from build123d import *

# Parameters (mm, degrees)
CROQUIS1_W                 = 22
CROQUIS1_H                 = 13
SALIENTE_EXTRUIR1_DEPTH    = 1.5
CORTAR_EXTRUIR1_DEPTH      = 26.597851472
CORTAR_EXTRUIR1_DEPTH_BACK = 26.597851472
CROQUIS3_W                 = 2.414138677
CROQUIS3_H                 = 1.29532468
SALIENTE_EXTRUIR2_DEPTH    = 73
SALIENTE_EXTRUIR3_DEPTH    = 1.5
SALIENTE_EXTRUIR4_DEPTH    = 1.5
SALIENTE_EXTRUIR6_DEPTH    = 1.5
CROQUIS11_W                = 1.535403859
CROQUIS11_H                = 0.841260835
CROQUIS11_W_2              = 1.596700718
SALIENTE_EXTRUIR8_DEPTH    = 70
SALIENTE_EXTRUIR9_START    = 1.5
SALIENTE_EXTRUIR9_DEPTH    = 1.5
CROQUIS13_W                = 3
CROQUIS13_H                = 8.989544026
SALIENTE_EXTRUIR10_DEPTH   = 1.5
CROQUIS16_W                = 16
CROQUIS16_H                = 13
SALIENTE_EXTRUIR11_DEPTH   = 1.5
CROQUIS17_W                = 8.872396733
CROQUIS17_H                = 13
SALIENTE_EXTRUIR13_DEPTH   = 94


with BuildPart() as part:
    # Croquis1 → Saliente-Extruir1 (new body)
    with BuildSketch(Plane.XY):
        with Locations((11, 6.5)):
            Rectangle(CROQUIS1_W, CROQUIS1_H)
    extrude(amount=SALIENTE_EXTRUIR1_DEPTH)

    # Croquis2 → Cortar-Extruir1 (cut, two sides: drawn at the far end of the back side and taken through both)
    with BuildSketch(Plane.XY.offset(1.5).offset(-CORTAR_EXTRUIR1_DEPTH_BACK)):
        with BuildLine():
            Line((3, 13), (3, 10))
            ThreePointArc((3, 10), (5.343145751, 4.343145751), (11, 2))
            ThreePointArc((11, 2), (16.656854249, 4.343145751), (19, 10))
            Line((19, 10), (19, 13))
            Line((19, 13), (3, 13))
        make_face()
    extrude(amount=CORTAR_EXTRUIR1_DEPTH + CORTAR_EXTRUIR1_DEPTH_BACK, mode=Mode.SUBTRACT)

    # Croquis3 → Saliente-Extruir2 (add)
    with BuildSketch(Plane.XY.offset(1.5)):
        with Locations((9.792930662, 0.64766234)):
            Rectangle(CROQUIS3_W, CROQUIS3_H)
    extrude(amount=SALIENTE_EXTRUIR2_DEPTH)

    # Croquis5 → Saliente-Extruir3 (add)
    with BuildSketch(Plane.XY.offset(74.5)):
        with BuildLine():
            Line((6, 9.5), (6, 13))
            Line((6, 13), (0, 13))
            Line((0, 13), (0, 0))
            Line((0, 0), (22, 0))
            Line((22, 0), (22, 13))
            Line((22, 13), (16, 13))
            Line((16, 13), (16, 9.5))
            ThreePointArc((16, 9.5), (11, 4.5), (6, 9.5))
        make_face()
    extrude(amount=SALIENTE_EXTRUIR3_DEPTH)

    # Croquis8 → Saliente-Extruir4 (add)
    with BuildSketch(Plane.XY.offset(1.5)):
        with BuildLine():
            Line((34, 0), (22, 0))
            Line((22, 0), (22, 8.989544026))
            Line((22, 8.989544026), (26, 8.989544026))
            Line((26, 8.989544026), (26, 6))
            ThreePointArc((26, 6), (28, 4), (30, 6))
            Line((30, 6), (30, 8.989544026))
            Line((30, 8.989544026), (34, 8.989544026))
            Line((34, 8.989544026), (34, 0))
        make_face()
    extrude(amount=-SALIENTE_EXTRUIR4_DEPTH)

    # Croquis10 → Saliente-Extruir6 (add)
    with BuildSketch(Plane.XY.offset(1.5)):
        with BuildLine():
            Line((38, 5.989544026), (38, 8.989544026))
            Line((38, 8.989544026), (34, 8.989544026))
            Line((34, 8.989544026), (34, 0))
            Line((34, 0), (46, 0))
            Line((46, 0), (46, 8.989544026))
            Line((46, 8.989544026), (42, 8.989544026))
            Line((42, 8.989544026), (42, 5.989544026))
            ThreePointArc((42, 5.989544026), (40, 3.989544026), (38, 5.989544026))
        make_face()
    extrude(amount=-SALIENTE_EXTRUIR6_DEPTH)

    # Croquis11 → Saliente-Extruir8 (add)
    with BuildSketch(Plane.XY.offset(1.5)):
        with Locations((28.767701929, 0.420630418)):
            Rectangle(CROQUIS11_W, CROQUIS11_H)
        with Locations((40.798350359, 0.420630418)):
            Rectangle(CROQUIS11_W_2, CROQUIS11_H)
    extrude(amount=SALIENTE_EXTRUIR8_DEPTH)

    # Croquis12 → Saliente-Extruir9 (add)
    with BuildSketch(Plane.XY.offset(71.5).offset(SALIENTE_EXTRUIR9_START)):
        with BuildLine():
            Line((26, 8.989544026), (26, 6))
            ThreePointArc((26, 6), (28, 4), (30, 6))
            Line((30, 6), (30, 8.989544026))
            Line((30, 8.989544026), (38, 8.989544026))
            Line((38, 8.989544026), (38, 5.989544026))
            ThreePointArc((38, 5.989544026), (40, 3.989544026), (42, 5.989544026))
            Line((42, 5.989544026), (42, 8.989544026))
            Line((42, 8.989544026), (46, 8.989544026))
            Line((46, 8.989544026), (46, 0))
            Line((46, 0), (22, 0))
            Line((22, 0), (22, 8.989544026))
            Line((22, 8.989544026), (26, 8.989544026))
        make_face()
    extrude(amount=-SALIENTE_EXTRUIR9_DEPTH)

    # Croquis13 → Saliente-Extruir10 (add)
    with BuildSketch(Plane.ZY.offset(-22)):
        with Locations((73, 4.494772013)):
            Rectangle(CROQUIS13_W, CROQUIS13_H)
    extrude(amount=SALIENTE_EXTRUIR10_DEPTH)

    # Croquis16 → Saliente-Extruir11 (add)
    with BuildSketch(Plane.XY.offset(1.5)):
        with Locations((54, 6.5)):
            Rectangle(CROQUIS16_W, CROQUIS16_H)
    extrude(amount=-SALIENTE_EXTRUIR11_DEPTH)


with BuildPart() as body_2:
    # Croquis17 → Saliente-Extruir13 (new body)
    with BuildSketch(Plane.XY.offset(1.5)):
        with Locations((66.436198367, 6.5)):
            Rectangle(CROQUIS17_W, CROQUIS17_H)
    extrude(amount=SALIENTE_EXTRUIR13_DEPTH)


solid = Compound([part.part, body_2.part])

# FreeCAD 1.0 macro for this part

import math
import FreeCAD as App
import Part
import Sketcher
from FreeCAD import Vector
Q = App.Units.Quantity

doc = App.newDocument("Part")
params = doc.addObject("Spreadsheet::Sheet", "Params")
for row, (alias, value) in enumerate([
    ("sketch1_width", "22 mm"),
    ("sketch1_height", "13 mm"),
    ("pad1_length", "1.5 mm"),
    ("sketch2_radius", "8 mm"),
    ("sketch2_height", "3 mm"),
    ("pad2_length", "73 mm"),
    ("sketch4_radius", "5 mm"),
    ("sketch4_width", "6 mm"),
    ("sketch4_height", "13 mm"),
    ("sketch4_height2", "3.5 mm"),
    ("pad3_length", "1.5 mm"),
    ("sketch5_radius", "2 mm"),
    ("sketch5_width", "12 mm"),
    ("pad4_length", "1.5 mm"),
    ("sketch6_radius", "2 mm"),
    ("sketch6_width", "4 mm"),
    ("sketch6_height", "3 mm"),
    ("pad5_length", "1.5 mm"),
    ("pad6_length", "70 mm"),
    ("sketch8_radius", "2 mm"),
    ("sketch8_width", "4 mm"),
    ("sketch8_width2", "24 mm"),
    ("sketch8_height", "3 mm"),
    ("pad7_length", "1.5 mm"),
    ("sketch9_height", "3 mm"),
    ("pad8_length", "1.5 mm"),
    ("sketch10_width", "16 mm"),
    ("sketch10_height", "13 mm"),
    ("pad9_length", "1.5 mm"),
    ("sketch11_height", "13 mm"),
    ("pad10_length", "94 mm"),
], start=1):
    params.set(f"A{row}", alias)
    params.set(f"B{row}", "=" + value)
    params.setAlias(f"B{row}", alias)

body = doc.addObject("PartDesign::Body", "Body")

sketch1 = body.newObject("Sketcher::SketchObject", "Sketch")
sketch1.AttachmentSupport = (doc.getObject("XY_Plane"), [""])
sketch1.MapMode = "FlatFace"
sketch1.addGeometry([
    Part.LineSegment(Vector(0, 13, 0), Vector(0, 0, 0)),
    Part.LineSegment(Vector(0, 0, 0), Vector(22, 0, 0)),
    Part.LineSegment(Vector(22, 0, 0), Vector(22, 13, 0)),
    Part.LineSegment(Vector(22, 13, 0), Vector(0, 13, 0)),
], False)
sketch1.addConstraint([
    Sketcher.Constraint("Coincident", 0, 2, 1, 1),
    Sketcher.Constraint("Coincident", 1, 2, 2, 1),
    Sketcher.Constraint("Coincident", 2, 2, 3, 1),
    Sketcher.Constraint("Coincident", 3, 2, 0, 1),
    Sketcher.Constraint("Vertical", 0),
    Sketcher.Constraint("Horizontal", 1),
    Sketcher.Constraint("Vertical", 2),
    Sketcher.Constraint("Horizontal", 3),
    Sketcher.Constraint("Coincident", 0, 2, -1, 1),
    Sketcher.Constraint("DistanceX", 1, 1, 1, 2, Q("22 mm")),
    Sketcher.Constraint("DistanceY", 0, 2, 0, 1, Q("13 mm")),
])
sketch1.setExpression("Constraints[9]", "Params.sketch1_width")
sketch1.setExpression("Constraints[10]", "Params.sketch1_height")
pad1 = body.newObject("PartDesign::Pad", "Pad")
pad1.Profile = sketch1
pad1.setExpression("Length", "Params.pad1_length")

sketch2 = body.newObject("Sketcher::SketchObject", "Sketch001")
sketch2.AttachmentSupport = (doc.getObject("XY_Plane"), [""])
sketch2.MapMode = "FlatFace"
sketch2.AttachmentOffset = App.Placement(Vector(0, 0, 1.5), App.Rotation())
sketch2.addGeometry([
    Part.LineSegment(Vector(3, 13, 0), Vector(3, 10, 0)),
    Part.ArcOfCircle(Part.Circle(Vector(11, 10, 0), Vector(0, 0, 1), 8), math.radians(-180), math.radians(-90)),
    Part.ArcOfCircle(Part.Circle(Vector(11, 10, 0), Vector(0, 0, 1), 8), math.radians(-90), math.radians(0)),
    Part.LineSegment(Vector(19, 10, 0), Vector(19, 13, 0)),
    Part.LineSegment(Vector(19, 13, 0), Vector(3, 13, 0)),
], False)
sketch2.addConstraint([
    Sketcher.Constraint("Tangent", 0, 2, 1, 1),
    Sketcher.Constraint("Tangent", 1, 2, 2, 1),
    Sketcher.Constraint("Tangent", 2, 2, 3, 1),
    Sketcher.Constraint("Coincident", 3, 2, 4, 1),
    Sketcher.Constraint("Coincident", 4, 2, 0, 1),
    Sketcher.Constraint("Vertical", 0),
    Sketcher.Constraint("Vertical", 3),
    Sketcher.Constraint("Horizontal", 4),
    Sketcher.Constraint("Equal", 1, 2),
    Sketcher.Constraint("Vertical", 2, 3, 1, 2),
    Sketcher.Constraint("Radius", 1, Q("8 mm")),
    Sketcher.Constraint("DistanceY", 0, 2, 0, 1, Q("3 mm")),
    Sketcher.Constraint("DistanceX", -1, 1, 1, 3, Q("11 mm")),
    Sketcher.Constraint("DistanceY", -1, 1, 1, 3, Q("10 mm")),
])
sketch2.setExpression("Constraints[10]", "Params.sketch2_radius")
sketch2.setExpression("Constraints[11]", "Params.sketch2_height")
pocket1 = body.newObject("PartDesign::Pocket", "Pocket")
pocket1.Profile = sketch2
pocket1.Type = "ThroughAll"
pocket1.Midplane = True

sketch3 = body.newObject("Sketcher::SketchObject", "Sketch002")
sketch3.AttachmentSupport = (doc.getObject("XY_Plane"), [""])
sketch3.MapMode = "FlatFace"
sketch3.AttachmentOffset = App.Placement(Vector(0, 0, 1.5), App.Rotation())
sketch3.addGeometry([
    Part.LineSegment(Vector(8.585861, 1.295325, 0), Vector(8.585861, 0, 0)),
    Part.LineSegment(Vector(8.585861, 0, 0), Vector(11, 0, 0)),
    Part.LineSegment(Vector(11, 0, 0), Vector(11, 1.295325, 0)),
    Part.LineSegment(Vector(11, 1.295325, 0), Vector(8.585861, 1.295325, 0)),
], False)
sketch3.addConstraint([
    Sketcher.Constraint("Coincident", 0, 2, 1, 1),
    Sketcher.Constraint("Coincident", 1, 2, 2, 1),
    Sketcher.Constraint("Coincident", 2, 2, 3, 1),
    Sketcher.Constraint("Coincident", 3, 2, 0, 1),
    Sketcher.Constraint("Vertical", 0),
    Sketcher.Constraint("Horizontal", 1),
    Sketcher.Constraint("Vertical", 2),
    Sketcher.Constraint("Horizontal", 3),
    Sketcher.Constraint("PointOnObject", 0, 2, -1),
    Sketcher.Constraint("DistanceX", -1, 1, 1, 2, Q("11 mm")),
    Sketcher.Constraint("DistanceX", 1, 1, 1, 2, Q("2.414139 mm")),
    Sketcher.Constraint("DistanceY", 0, 2, 0, 1, Q("1.295325 mm")),
])
pad2 = body.newObject("PartDesign::Pad", "Pad001")
pad2.Profile = sketch3
pad2.setExpression("Length", "Params.pad2_length")

sketch4 = body.newObject("Sketcher::SketchObject", "Sketch003")
sketch4.AttachmentSupport = (doc.getObject("XY_Plane"), [""])
sketch4.MapMode = "FlatFace"
sketch4.AttachmentOffset = App.Placement(Vector(0, 0, 74.5), App.Rotation())
sketch4.addGeometry([
    Part.LineSegment(Vector(6, 9.5, 0), Vector(6, 13, 0)),
    Part.LineSegment(Vector(6, 13, 0), Vector(0, 13, 0)),
    Part.LineSegment(Vector(0, 13, 0), Vector(0, 0, 0)),
    Part.LineSegment(Vector(0, 0, 0), Vector(22, 0, 0)),
    Part.LineSegment(Vector(22, 0, 0), Vector(22, 13, 0)),
    Part.LineSegment(Vector(22, 13, 0), Vector(16, 13, 0)),
    Part.LineSegment(Vector(16, 13, 0), Vector(16, 9.5, 0)),
    Part.ArcOfCircle(Part.Circle(Vector(11, 9.5, 0), Vector(0, 0, 1), 5), math.radians(180), math.radians(360)),
], False)
sketch4.addConstraint([
    Sketcher.Constraint("Coincident", 0, 2, 1, 1),
    Sketcher.Constraint("Coincident", 1, 2, 2, 1),
    Sketcher.Constraint("Coincident", 2, 2, 3, 1),
    Sketcher.Constraint("Coincident", 3, 2, 4, 1),
    Sketcher.Constraint("Coincident", 4, 2, 5, 1),
    Sketcher.Constraint("Coincident", 5, 2, 6, 1),
    Sketcher.Constraint("Tangent", 6, 2, 7, 2),
    Sketcher.Constraint("Tangent", 7, 1, 0, 1),
    Sketcher.Constraint("Vertical", 0),
    Sketcher.Constraint("Horizontal", 1),
    Sketcher.Constraint("Vertical", 2),
    Sketcher.Constraint("Horizontal", 3),
    Sketcher.Constraint("Vertical", 4),
    Sketcher.Constraint("Horizontal", 5),
    Sketcher.Constraint("Vertical", 6),
    Sketcher.Constraint("Coincident", 2, 2, -1, 1),
    Sketcher.Constraint("Horizontal", 1, 2, 4, 2),
    Sketcher.Constraint("Equal", 1, 5),
    Sketcher.Constraint("Radius", 7, Q("5 mm")),
    Sketcher.Constraint("DistanceX", 1, 2, 1, 1, Q("6 mm")),
    Sketcher.Constraint("DistanceY", 2, 2, 2, 1, Q("13 mm")),
    Sketcher.Constraint("DistanceY", 0, 1, 0, 2, Q("3.5 mm")),
])
sketch4.setExpression("Constraints[18]", "Params.sketch4_radius")
sketch4.setExpression("Constraints[19]", "Params.sketch4_width")
sketch4.setExpression("Constraints[20]", "Params.sketch4_height")
sketch4.setExpression("Constraints[21]", "Params.sketch4_height2")
pad3 = body.newObject("PartDesign::Pad", "Pad002")
pad3.Profile = sketch4
pad3.setExpression("Length", "Params.pad3_length")

sketch5 = body.newObject("Sketcher::SketchObject", "Sketch004")
sketch5.AttachmentSupport = (doc.getObject("XY_Plane"), [""])
sketch5.MapMode = "FlatFace"
sketch5.AttachmentOffset = App.Placement(Vector(0, 0, 1.5), App.Rotation())
sketch5.addGeometry([
    Part.LineSegment(Vector(22, 0, 0), Vector(34, 0, 0)),
    Part.LineSegment(Vector(34, 0, 0), Vector(34, 8.989544, 0)),
    Part.LineSegment(Vector(34, 8.989544, 0), Vector(30, 8.989544, 0)),
    Part.LineSegment(Vector(30, 8.989544, 0), Vector(30, 6, 0)),
    Part.ArcOfCircle(Part.Circle(Vector(28, 6, 0), Vector(0, 0, 1), 2), math.radians(180), math.radians(360)),
    Part.LineSegment(Vector(26, 6, 0), Vector(26, 8.989544, 0)),
    Part.LineSegment(Vector(26, 8.989544, 0), Vector(22, 8.989544, 0)),
    Part.LineSegment(Vector(22, 8.989544, 0), Vector(22, 0, 0)),
], False)
sketch5.addConstraint([
    Sketcher.Constraint("Coincident", 0, 2, 1, 1),
    Sketcher.Constraint("Coincident", 1, 2, 2, 1),
    Sketcher.Constraint("Coincident", 2, 2, 3, 1),
    Sketcher.Constraint("Tangent", 3, 2, 4, 2),
    Sketcher.Constraint("Tangent", 4, 1, 5, 1),
    Sketcher.Constraint("Coincident", 5, 2, 6, 1),
    Sketcher.Constraint("Coincident", 6, 2, 7, 1),
    Sketcher.Constraint("Coincident", 7, 2, 0, 1),
    Sketcher.Constraint("Horizontal", 0),
    Sketcher.Constraint("Vertical", 1),
    Sketcher.Constraint("Horizontal", 2),
    Sketcher.Constraint("Vertical", 3),
    Sketcher.Constraint("Vertical", 5),
    Sketcher.Constraint("Horizontal", 6),
    Sketcher.Constraint("Vertical", 7),
    Sketcher.Constraint("PointOnObject", 0, 2, -1),
    Sketcher.Constraint("Horizontal", 2, 2, 5, 2),
    Sketcher.Constraint("Equal", 2, 6),
    Sketcher.Constraint("Radius", 4, Q("2 mm")),
    Sketcher.Constraint("DistanceX", 0, 1, 0, 2, Q("12 mm")),
    Sketcher.Constraint("DistanceX", -1, 1, 4, 3, Q("28 mm")),
    Sketcher.Constraint("DistanceY", -1, 1, 4, 3, Q("6 mm")),
    Sketcher.Constraint("DistanceY", 1, 1, 1, 2, Q("8.989544 mm")),
])
sketch5.setExpression("Constraints[18]", "Params.sketch5_radius")
sketch5.setExpression("Constraints[19]", "Params.sketch5_width")
pad4 = body.newObject("PartDesign::Pad", "Pad003")
pad4.Profile = sketch5
pad4.setExpression("Length", "Params.pad4_length")
pad4.Reversed = True

sketch6 = body.newObject("Sketcher::SketchObject", "Sketch005")
sketch6.AttachmentSupport = (doc.getObject("XY_Plane"), [""])
sketch6.MapMode = "FlatFace"
sketch6.AttachmentOffset = App.Placement(Vector(0, 0, 1.5), App.Rotation())
sketch6.addGeometry([
    Part.LineSegment(Vector(38, 5.989544, 0), Vector(38, 8.989544, 0)),
    Part.LineSegment(Vector(38, 8.989544, 0), Vector(34, 8.989544, 0)),
    Part.LineSegment(Vector(34, 8.989544, 0), Vector(34, 0, 0)),
    Part.LineSegment(Vector(34, 0, 0), Vector(46, 0, 0)),
    Part.LineSegment(Vector(46, 0, 0), Vector(46, 8.989544, 0)),
    Part.LineSegment(Vector(46, 8.989544, 0), Vector(42, 8.989544, 0)),
    Part.LineSegment(Vector(42, 8.989544, 0), Vector(42, 5.989544, 0)),
    Part.ArcOfCircle(Part.Circle(Vector(40, 5.989544, 0), Vector(0, 0, 1), 2), math.radians(180), math.radians(360)),
], False)
sketch6.addConstraint([
    Sketcher.Constraint("Coincident", 0, 2, 1, 1),
    Sketcher.Constraint("Coincident", 1, 2, 2, 1),
    Sketcher.Constraint("Coincident", 2, 2, 3, 1),
    Sketcher.Constraint("Coincident", 3, 2, 4, 1),
    Sketcher.Constraint("Coincident", 4, 2, 5, 1),
    Sketcher.Constraint("Coincident", 5, 2, 6, 1),
    Sketcher.Constraint("Tangent", 6, 2, 7, 2),
    Sketcher.Constraint("Tangent", 7, 1, 0, 1),
    Sketcher.Constraint("Vertical", 0),
    Sketcher.Constraint("Horizontal", 1),
    Sketcher.Constraint("Vertical", 2),
    Sketcher.Constraint("Horizontal", 3),
    Sketcher.Constraint("Vertical", 4),
    Sketcher.Constraint("Horizontal", 5),
    Sketcher.Constraint("Vertical", 6),
    Sketcher.Constraint("PointOnObject", 2, 2, -1),
    Sketcher.Constraint("Horizontal", 1, 2, 4, 2),
    Sketcher.Constraint("Equal", 1, 5),
    Sketcher.Constraint("Radius", 7, Q("2 mm")),
    Sketcher.Constraint("DistanceX", 1, 2, 1, 1, Q("4 mm")),
    Sketcher.Constraint("DistanceY", 0, 1, 0, 2, Q("3 mm")),
    Sketcher.Constraint("DistanceX", -1, 1, 7, 3, Q("40 mm")),
    Sketcher.Constraint("DistanceY", 2, 2, 2, 1, Q("8.989544 mm")),
])
sketch6.setExpression("Constraints[18]", "Params.sketch6_radius")
sketch6.setExpression("Constraints[19]", "Params.sketch6_width")
sketch6.setExpression("Constraints[20]", "Params.sketch6_height")
pad5 = body.newObject("PartDesign::Pad", "Pad004")
pad5.Profile = sketch6
pad5.setExpression("Length", "Params.pad5_length")
pad5.Reversed = True

sketch7 = body.newObject("Sketcher::SketchObject", "Sketch006")
sketch7.AttachmentSupport = (doc.getObject("XY_Plane"), [""])
sketch7.MapMode = "FlatFace"
sketch7.AttachmentOffset = App.Placement(Vector(0, 0, 1.5), App.Rotation())
sketch7.addGeometry([
    Part.LineSegment(Vector(28, 0.841261, 0), Vector(28, 0, 0)),
    Part.LineSegment(Vector(28, 0, 0), Vector(29.535404, 0, 0)),
    Part.LineSegment(Vector(29.535404, 0, 0), Vector(29.535404, 0.841261, 0)),
    Part.LineSegment(Vector(29.535404, 0.841261, 0), Vector(28, 0.841261, 0)),
    Part.LineSegment(Vector(40, 0.841261, 0), Vector(40, 0, 0)),
    Part.LineSegment(Vector(40, 0, 0), Vector(41.596701, 0, 0)),
    Part.LineSegment(Vector(41.596701, 0, 0), Vector(41.596701, 0.841261, 0)),
    Part.LineSegment(Vector(41.596701, 0.841261, 0), Vector(40, 0.841261, 0)),
], False)
sketch7.addConstraint([
    Sketcher.Constraint("Coincident", 0, 2, 1, 1),
    Sketcher.Constraint("Coincident", 1, 2, 2, 1),
    Sketcher.Constraint("Coincident", 2, 2, 3, 1),
    Sketcher.Constraint("Coincident", 3, 2, 0, 1),
    Sketcher.Constraint("Coincident", 4, 2, 5, 1),
    Sketcher.Constraint("Coincident", 5, 2, 6, 1),
    Sketcher.Constraint("Coincident", 6, 2, 7, 1),
    Sketcher.Constraint("Coincident", 7, 2, 4, 1),
    Sketcher.Constraint("Vertical", 0),
    Sketcher.Constraint("Horizontal", 1),
    Sketcher.Constraint("Vertical", 2),
    Sketcher.Constraint("Horizontal", 3),
    Sketcher.Constraint("Vertical", 4),
    Sketcher.Constraint("Horizontal", 5),
    Sketcher.Constraint("Vertical", 6),
    Sketcher.Constraint("Horizontal", 7),
    Sketcher.Constraint("PointOnObject", 0, 2, -1),
    Sketcher.Constraint("PointOnObject", 4, 2, -1),
    Sketcher.Constraint("Horizontal", 3, 2, 6, 2),
    Sketcher.Constraint("DistanceX", -1, 1, 0, 2, Q("28 mm")),
    Sketcher.Constraint("DistanceX", -1, 1, 4, 2, Q("40 mm")),
    Sketcher.Constraint("DistanceX", 5, 1, 5, 2, Q("1.596701 mm")),
    Sketcher.Constraint("DistanceY", 0, 2, 0, 1, Q("0.841261 mm")),
    Sketcher.Constraint("DistanceX", 1, 1, 1, 2, Q("1.535404 mm")),
])
pad6 = body.newObject("PartDesign::Pad", "Pad005")
pad6.Profile = sketch7
pad6.setExpression("Length", "Params.pad6_length")

sketch8 = body.newObject("Sketcher::SketchObject", "Sketch007")
sketch8.AttachmentSupport = (doc.getObject("XY_Plane"), [""])
sketch8.MapMode = "FlatFace"
sketch8.AttachmentOffset = App.Placement(Vector(0, 0, 73), App.Rotation())
sketch8.addGeometry([
    Part.LineSegment(Vector(26, 6, 0), Vector(26, 8.989544, 0)),
    Part.LineSegment(Vector(26, 8.989544, 0), Vector(22, 8.989544, 0)),
    Part.LineSegment(Vector(22, 8.989544, 0), Vector(22, 0, 0)),
    Part.LineSegment(Vector(22, 0, 0), Vector(46, 0, 0)),
    Part.LineSegment(Vector(46, 0, 0), Vector(46, 8.989544, 0)),
    Part.LineSegment(Vector(46, 8.989544, 0), Vector(42, 8.989544, 0)),
    Part.LineSegment(Vector(42, 8.989544, 0), Vector(42, 5.989544, 0)),
    Part.ArcOfCircle(Part.Circle(Vector(40, 5.989544, 0), Vector(0, 0, 1), 2), math.radians(180), math.radians(360)),
    Part.LineSegment(Vector(38, 5.989544, 0), Vector(38, 8.989544, 0)),
    Part.LineSegment(Vector(38, 8.989544, 0), Vector(30, 8.989544, 0)),
    Part.LineSegment(Vector(30, 8.989544, 0), Vector(30, 6, 0)),
    Part.ArcOfCircle(Part.Circle(Vector(28, 6, 0), Vector(0, 0, 1), 2), math.radians(180), math.radians(360)),
], False)
sketch8.addConstraint([
    Sketcher.Constraint("Coincident", 0, 2, 1, 1),
    Sketcher.Constraint("Coincident", 1, 2, 2, 1),
    Sketcher.Constraint("Coincident", 2, 2, 3, 1),
    Sketcher.Constraint("Coincident", 3, 2, 4, 1),
    Sketcher.Constraint("Coincident", 4, 2, 5, 1),
    Sketcher.Constraint("Coincident", 5, 2, 6, 1),
    Sketcher.Constraint("Tangent", 6, 2, 7, 2),
    Sketcher.Constraint("Tangent", 7, 1, 8, 1),
    Sketcher.Constraint("Coincident", 8, 2, 9, 1),
    Sketcher.Constraint("Coincident", 9, 2, 10, 1),
    Sketcher.Constraint("Tangent", 10, 2, 11, 2),
    Sketcher.Constraint("Tangent", 11, 1, 0, 1),
    Sketcher.Constraint("Vertical", 0),
    Sketcher.Constraint("Horizontal", 1),
    Sketcher.Constraint("Vertical", 2),
    Sketcher.Constraint("Horizontal", 3),
    Sketcher.Constraint("Vertical", 4),
    Sketcher.Constraint("Horizontal", 5),
    Sketcher.Constraint("Vertical", 6),
    Sketcher.Constraint("Vertical", 8),
    Sketcher.Constraint("Horizontal", 9),
    Sketcher.Constraint("Vertical", 10),
    Sketcher.Constraint("Equal", 7, 11),
    Sketcher.Constraint("PointOnObject", 2, 2, -1),
    Sketcher.Constraint("Horizontal", 1, 2, 4, 2),
    Sketcher.Constraint("Horizontal", 5, 2, 8, 2),
    Sketcher.Constraint("Equal", 1, 5),
    Sketcher.Constraint("Radius", 7, Q("2 mm")),
    Sketcher.Constraint("DistanceX", 1, 2, 1, 1, Q("4 mm")),
    Sketcher.Constraint("DistanceX", 3, 1, 3, 2, Q("24 mm")),
    Sketcher.Constraint("DistanceY", 6, 2, 6, 1, Q("3 mm")),
    Sketcher.Constraint("DistanceX", -1, 1, 7, 3, Q("40 mm")),
    Sketcher.Constraint("DistanceY", -1, 1, 11, 3, Q("6 mm")),
    Sketcher.Constraint("DistanceY", 0, 1, 0, 2, Q("2.989544 mm")),
])
sketch8.setExpression("Constraints[27]", "Params.sketch8_radius")
sketch8.setExpression("Constraints[28]", "Params.sketch8_width")
sketch8.setExpression("Constraints[29]", "Params.sketch8_width2")
sketch8.setExpression("Constraints[30]", "Params.sketch8_height")
pad7 = body.newObject("PartDesign::Pad", "Pad006")
pad7.Profile = sketch8
pad7.setExpression("Length", "Params.pad7_length")
pad7.Reversed = True

sketch9 = body.newObject("Sketcher::SketchObject", "Sketch008")
sketch9.AttachmentSupport = (doc.getObject("YZ_Plane"), [""])
sketch9.MapMode = "FlatFace"
sketch9.AttachmentOffset = App.Placement(Vector(0, 0, 22), App.Rotation())
sketch9.addGeometry([
    Part.LineSegment(Vector(8.989544, 71.5, 0), Vector(0, 71.5, 0)),
    Part.LineSegment(Vector(0, 71.5, 0), Vector(0, 74.5, 0)),
    Part.LineSegment(Vector(0, 74.5, 0), Vector(8.989544, 74.5, 0)),
    Part.LineSegment(Vector(8.989544, 74.5, 0), Vector(8.989544, 71.5, 0)),
], False)
sketch9.addConstraint([
    Sketcher.Constraint("Coincident", 0, 2, 1, 1),
    Sketcher.Constraint("Coincident", 1, 2, 2, 1),
    Sketcher.Constraint("Coincident", 2, 2, 3, 1),
    Sketcher.Constraint("Coincident", 3, 2, 0, 1),
    Sketcher.Constraint("Horizontal", 0),
    Sketcher.Constraint("Vertical", 1),
    Sketcher.Constraint("Horizontal", 2),
    Sketcher.Constraint("Vertical", 3),
    Sketcher.Constraint("PointOnObject", 0, 2, -2),
    Sketcher.Constraint("DistanceY", 1, 1, 1, 2, Q("3 mm")),
    Sketcher.Constraint("DistanceY", -1, 1, 0, 2, Q("71.5 mm")),
    Sketcher.Constraint("DistanceX", 0, 2, 0, 1, Q("8.989544 mm")),
])
sketch9.setExpression("Constraints[9]", "Params.sketch9_height")
pad8 = body.newObject("PartDesign::Pad", "Pad007")
pad8.Profile = sketch9
pad8.setExpression("Length", "Params.pad8_length")
pad8.Reversed = True

sketch10 = body.newObject("Sketcher::SketchObject", "Sketch009")
sketch10.AttachmentSupport = (doc.getObject("XY_Plane"), [""])
sketch10.MapMode = "FlatFace"
sketch10.AttachmentOffset = App.Placement(Vector(0, 0, 1.5), App.Rotation())
sketch10.addGeometry([
    Part.LineSegment(Vector(46, 13, 0), Vector(46, 0, 0)),
    Part.LineSegment(Vector(46, 0, 0), Vector(62, 0, 0)),
    Part.LineSegment(Vector(62, 0, 0), Vector(62, 13, 0)),
    Part.LineSegment(Vector(62, 13, 0), Vector(46, 13, 0)),
], False)
sketch10.addConstraint([
    Sketcher.Constraint("Coincident", 0, 2, 1, 1),
    Sketcher.Constraint("Coincident", 1, 2, 2, 1),
    Sketcher.Constraint("Coincident", 2, 2, 3, 1),
    Sketcher.Constraint("Coincident", 3, 2, 0, 1),
    Sketcher.Constraint("Vertical", 0),
    Sketcher.Constraint("Horizontal", 1),
    Sketcher.Constraint("Vertical", 2),
    Sketcher.Constraint("Horizontal", 3),
    Sketcher.Constraint("PointOnObject", 0, 2, -1),
    Sketcher.Constraint("DistanceX", 1, 1, 1, 2, Q("16 mm")),
    Sketcher.Constraint("DistanceY", 0, 2, 0, 1, Q("13 mm")),
    Sketcher.Constraint("DistanceX", -1, 1, 0, 2, Q("46 mm")),
])
sketch10.setExpression("Constraints[9]", "Params.sketch10_width")
sketch10.setExpression("Constraints[10]", "Params.sketch10_height")
pad9 = body.newObject("PartDesign::Pad", "Pad008")
pad9.Profile = sketch10
pad9.setExpression("Length", "Params.pad9_length")
pad9.Reversed = True
body2 = doc.addObject("PartDesign::Body", "Body001")

sketch11 = body2.newObject("Sketcher::SketchObject", "Sketch010")
sketch11.AttachmentSupport = (doc.getObject("XY_Plane001"), [""])
sketch11.MapMode = "FlatFace"
sketch11.AttachmentOffset = App.Placement(Vector(0, 0, 1.5), App.Rotation())
sketch11.addGeometry([
    Part.LineSegment(Vector(62, 13, 0), Vector(62, 0, 0)),
    Part.LineSegment(Vector(62, 0, 0), Vector(70.872397, 0, 0)),
    Part.LineSegment(Vector(70.872397, 0, 0), Vector(70.872397, 13, 0)),
    Part.LineSegment(Vector(70.872397, 13, 0), Vector(62, 13, 0)),
], False)
sketch11.addConstraint([
    Sketcher.Constraint("Coincident", 0, 2, 1, 1),
    Sketcher.Constraint("Coincident", 1, 2, 2, 1),
    Sketcher.Constraint("Coincident", 2, 2, 3, 1),
    Sketcher.Constraint("Coincident", 3, 2, 0, 1),
    Sketcher.Constraint("Vertical", 0),
    Sketcher.Constraint("Horizontal", 1),
    Sketcher.Constraint("Vertical", 2),
    Sketcher.Constraint("Horizontal", 3),
    Sketcher.Constraint("PointOnObject", 0, 2, -1),
    Sketcher.Constraint("DistanceY", 0, 2, 0, 1, Q("13 mm")),
    Sketcher.Constraint("DistanceX", -1, 1, 0, 2, Q("62 mm")),
    Sketcher.Constraint("DistanceX", 1, 1, 1, 2, Q("8.872397 mm")),
])
sketch11.setExpression("Constraints[9]", "Params.sketch11_height")
pad10 = body2.newObject("PartDesign::Pad", "Pad009")
pad10.Profile = sketch11
pad10.setExpression("Length", "Params.pad10_length")

doc.recompute()
